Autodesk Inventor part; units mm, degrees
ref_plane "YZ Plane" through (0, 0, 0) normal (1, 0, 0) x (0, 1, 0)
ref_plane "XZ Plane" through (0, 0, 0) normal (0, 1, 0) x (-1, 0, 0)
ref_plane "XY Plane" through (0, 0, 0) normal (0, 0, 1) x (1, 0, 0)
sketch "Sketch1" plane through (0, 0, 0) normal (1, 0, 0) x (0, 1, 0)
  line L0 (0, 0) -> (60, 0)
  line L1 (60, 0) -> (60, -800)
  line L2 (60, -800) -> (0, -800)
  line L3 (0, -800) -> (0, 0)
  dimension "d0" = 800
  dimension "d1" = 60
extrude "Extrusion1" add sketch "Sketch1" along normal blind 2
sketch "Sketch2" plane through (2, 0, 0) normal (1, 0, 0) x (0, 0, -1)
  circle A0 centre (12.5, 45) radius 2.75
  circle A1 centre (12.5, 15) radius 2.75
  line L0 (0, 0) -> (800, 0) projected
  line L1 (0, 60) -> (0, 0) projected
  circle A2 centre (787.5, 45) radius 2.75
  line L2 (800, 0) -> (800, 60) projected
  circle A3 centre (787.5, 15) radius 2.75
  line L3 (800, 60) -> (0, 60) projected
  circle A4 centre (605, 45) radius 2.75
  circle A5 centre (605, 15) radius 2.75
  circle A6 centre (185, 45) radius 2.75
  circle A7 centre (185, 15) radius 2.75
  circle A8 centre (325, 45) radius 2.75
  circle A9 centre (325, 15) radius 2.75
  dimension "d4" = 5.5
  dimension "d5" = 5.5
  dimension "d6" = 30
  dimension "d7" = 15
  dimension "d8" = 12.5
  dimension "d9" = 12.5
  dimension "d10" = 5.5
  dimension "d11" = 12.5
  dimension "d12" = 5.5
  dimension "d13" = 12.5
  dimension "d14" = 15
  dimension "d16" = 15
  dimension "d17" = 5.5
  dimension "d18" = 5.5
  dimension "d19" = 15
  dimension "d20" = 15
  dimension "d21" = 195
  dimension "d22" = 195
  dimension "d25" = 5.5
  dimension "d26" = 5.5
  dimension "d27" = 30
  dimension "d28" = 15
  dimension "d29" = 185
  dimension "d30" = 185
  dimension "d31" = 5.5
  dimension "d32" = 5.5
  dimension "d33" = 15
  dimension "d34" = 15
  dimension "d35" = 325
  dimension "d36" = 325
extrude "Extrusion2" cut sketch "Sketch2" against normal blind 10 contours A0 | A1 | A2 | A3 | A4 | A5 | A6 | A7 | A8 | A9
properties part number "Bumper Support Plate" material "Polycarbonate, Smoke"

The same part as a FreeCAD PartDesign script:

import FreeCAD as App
import Part
import Sketcher

V = App.Vector


def add_polygon(sketch, points):
    """Adds a closed chain of lines whose ends are joined by coincident constraints."""
    first, n = sketch.GeometryCount, len(points)
    for a, b in zip(points, points[1:] + points[:1]):
        sketch.addGeometry(Part.LineSegment(App.Vector(*a, 0), App.Vector(*b, 0)), False)
    for i in range(n):
        sketch.addConstraint(Sketcher.Constraint("Coincident", first + i, 2, first + (i + 1) % n, 1))

doc = App.newDocument("Part")
body = doc.addObject("PartDesign::Body", "Body")

# Sketch on YZ plane
sketch1 = doc.addObject("Sketcher::SketchObject", "Sketch")
body.addObject(sketch1)
sketch1.AttachmentSupport = (doc.YZ_Plane, [""])
sketch1.MapMode = "FlatFace"
add_polygon(sketch1, [(60, 0), (0, 0), (0, -800), (60, -800)])  # lines 0-3
sketch1.addConstraint(Sketcher.Constraint("Horizontal", 0))
sketch1.addConstraint(Sketcher.Constraint("Vertical", 1))
sketch1.addConstraint(Sketcher.Constraint("Horizontal", 2))
sketch1.addConstraint(Sketcher.Constraint("Vertical", 3))
sketch1.addConstraint(Sketcher.Constraint("Coincident", 0, 2, -1, 1))
sketch1.addConstraint(Sketcher.Constraint("DistanceX", 0, 2, 0, 1, 60.0))
sketch1.addConstraint(Sketcher.Constraint("DistanceY", 1, 2, 1, 1, 800.0))
pad1 = doc.addObject("PartDesign::Pad", "Pad")
body.addObject(pad1)
pad1.Profile = sketch1
pad1.Length = 2

# Sketch on YZ plane
sketch2 = doc.addObject("Sketcher::SketchObject", "Sketch001")
body.addObject(sketch2)
sketch2.AttachmentSupport = (doc.YZ_Plane, [""])
sketch2.MapMode = "FlatFace"
sketch2.AttachmentOffset = App.Placement(V(0, 0, 2), App.Rotation())
sketch2.addGeometry(Part.Circle(V(45, -12.5, 0), V(0, 0, 1), 2.75), False)
sketch2.addGeometry(Part.Circle(V(15, -12.5, 0), V(0, 0, 1), 2.75), False)
sketch2.addGeometry(Part.Circle(V(45, -787.5, 0), V(0, 0, 1), 2.75), False)
sketch2.addGeometry(Part.Circle(V(15, -787.5, 0), V(0, 0, 1), 2.75), False)
sketch2.addGeometry(Part.Circle(V(45, -605, 0), V(0, 0, 1), 2.75), False)
sketch2.addGeometry(Part.Circle(V(15, -605, 0), V(0, 0, 1), 2.75), False)
sketch2.addGeometry(Part.Circle(V(45, -185, 0), V(0, 0, 1), 2.75), False)
sketch2.addGeometry(Part.Circle(V(15, -185, 0), V(0, 0, 1), 2.75), False)
sketch2.addGeometry(Part.Circle(V(45, -325, 0), V(0, 0, 1), 2.75), False)
sketch2.addGeometry(Part.Circle(V(15, -325, 0), V(0, 0, 1), 2.75), False)
sketch2.addConstraint(Sketcher.Constraint("Equal", 0, 1))
sketch2.addConstraint(Sketcher.Constraint("Equal", 1, 2))
sketch2.addConstraint(Sketcher.Constraint("Equal", 2, 3))
sketch2.addConstraint(Sketcher.Constraint("Equal", 3, 4))
sketch2.addConstraint(Sketcher.Constraint("Equal", 4, 5))
sketch2.addConstraint(Sketcher.Constraint("Equal", 5, 6))
sketch2.addConstraint(Sketcher.Constraint("Equal", 6, 7))
sketch2.addConstraint(Sketcher.Constraint("Equal", 7, 8))
sketch2.addConstraint(Sketcher.Constraint("Equal", 8, 9))
sketch2.addConstraint(Sketcher.Constraint("Horizontal", 0, 3, 1, 3))
sketch2.addConstraint(Sketcher.Constraint("Horizontal", 2, 3, 3, 3))
sketch2.addConstraint(Sketcher.Constraint("Horizontal", 4, 3, 5, 3))
sketch2.addConstraint(Sketcher.Constraint("Horizontal", 6, 3, 7, 3))
sketch2.addConstraint(Sketcher.Constraint("Horizontal", 8, 3, 9, 3))
sketch2.addConstraint(Sketcher.Constraint("Vertical", 0, 3, 2, 3))
sketch2.addConstraint(Sketcher.Constraint("Vertical", 1, 3, 3, 3))
sketch2.addConstraint(Sketcher.Constraint("Vertical", 2, 3, 4, 3))
sketch2.addConstraint(Sketcher.Constraint("Vertical", 3, 3, 5, 3))
sketch2.addConstraint(Sketcher.Constraint("Vertical", 4, 3, 6, 3))
sketch2.addConstraint(Sketcher.Constraint("Vertical", 5, 3, 7, 3))
sketch2.addConstraint(Sketcher.Constraint("Vertical", 6, 3, 8, 3))
sketch2.addConstraint(Sketcher.Constraint("Vertical", 7, 3, 9, 3))
sketch2.addConstraint(Sketcher.Constraint("Diameter", 0, 5.5))
sketch2.addConstraint(Sketcher.Constraint("DistanceX", -1, 1, 1, 3, 15.0))
sketch2.addConstraint(Sketcher.Constraint("DistanceY", 6, 3, -1, 1, 185.0))
sketch2.addConstraint(Sketcher.Constraint("DistanceY", 8, 3, -1, 1, 325.0))
sketch2.addConstraint(Sketcher.Constraint("DistanceX", 1, 3, 0, 3, 30.0))
sketch2.addConstraint(Sketcher.Constraint("DistanceY", 0, 3, -1, 1, 12.5))
sketch2.addConstraint(Sketcher.Constraint("DistanceY", 4, 3, -1, 1, 605.0))
sketch2.addConstraint(Sketcher.Constraint("DistanceY", 2, 3, 0, 3, 775.0))
pocket1 = doc.addObject("PartDesign::Pocket", "Pocket")
body.addObject(pocket1)
pocket1.Profile = sketch2
pocket1.Length = 10

doc.recompute()
